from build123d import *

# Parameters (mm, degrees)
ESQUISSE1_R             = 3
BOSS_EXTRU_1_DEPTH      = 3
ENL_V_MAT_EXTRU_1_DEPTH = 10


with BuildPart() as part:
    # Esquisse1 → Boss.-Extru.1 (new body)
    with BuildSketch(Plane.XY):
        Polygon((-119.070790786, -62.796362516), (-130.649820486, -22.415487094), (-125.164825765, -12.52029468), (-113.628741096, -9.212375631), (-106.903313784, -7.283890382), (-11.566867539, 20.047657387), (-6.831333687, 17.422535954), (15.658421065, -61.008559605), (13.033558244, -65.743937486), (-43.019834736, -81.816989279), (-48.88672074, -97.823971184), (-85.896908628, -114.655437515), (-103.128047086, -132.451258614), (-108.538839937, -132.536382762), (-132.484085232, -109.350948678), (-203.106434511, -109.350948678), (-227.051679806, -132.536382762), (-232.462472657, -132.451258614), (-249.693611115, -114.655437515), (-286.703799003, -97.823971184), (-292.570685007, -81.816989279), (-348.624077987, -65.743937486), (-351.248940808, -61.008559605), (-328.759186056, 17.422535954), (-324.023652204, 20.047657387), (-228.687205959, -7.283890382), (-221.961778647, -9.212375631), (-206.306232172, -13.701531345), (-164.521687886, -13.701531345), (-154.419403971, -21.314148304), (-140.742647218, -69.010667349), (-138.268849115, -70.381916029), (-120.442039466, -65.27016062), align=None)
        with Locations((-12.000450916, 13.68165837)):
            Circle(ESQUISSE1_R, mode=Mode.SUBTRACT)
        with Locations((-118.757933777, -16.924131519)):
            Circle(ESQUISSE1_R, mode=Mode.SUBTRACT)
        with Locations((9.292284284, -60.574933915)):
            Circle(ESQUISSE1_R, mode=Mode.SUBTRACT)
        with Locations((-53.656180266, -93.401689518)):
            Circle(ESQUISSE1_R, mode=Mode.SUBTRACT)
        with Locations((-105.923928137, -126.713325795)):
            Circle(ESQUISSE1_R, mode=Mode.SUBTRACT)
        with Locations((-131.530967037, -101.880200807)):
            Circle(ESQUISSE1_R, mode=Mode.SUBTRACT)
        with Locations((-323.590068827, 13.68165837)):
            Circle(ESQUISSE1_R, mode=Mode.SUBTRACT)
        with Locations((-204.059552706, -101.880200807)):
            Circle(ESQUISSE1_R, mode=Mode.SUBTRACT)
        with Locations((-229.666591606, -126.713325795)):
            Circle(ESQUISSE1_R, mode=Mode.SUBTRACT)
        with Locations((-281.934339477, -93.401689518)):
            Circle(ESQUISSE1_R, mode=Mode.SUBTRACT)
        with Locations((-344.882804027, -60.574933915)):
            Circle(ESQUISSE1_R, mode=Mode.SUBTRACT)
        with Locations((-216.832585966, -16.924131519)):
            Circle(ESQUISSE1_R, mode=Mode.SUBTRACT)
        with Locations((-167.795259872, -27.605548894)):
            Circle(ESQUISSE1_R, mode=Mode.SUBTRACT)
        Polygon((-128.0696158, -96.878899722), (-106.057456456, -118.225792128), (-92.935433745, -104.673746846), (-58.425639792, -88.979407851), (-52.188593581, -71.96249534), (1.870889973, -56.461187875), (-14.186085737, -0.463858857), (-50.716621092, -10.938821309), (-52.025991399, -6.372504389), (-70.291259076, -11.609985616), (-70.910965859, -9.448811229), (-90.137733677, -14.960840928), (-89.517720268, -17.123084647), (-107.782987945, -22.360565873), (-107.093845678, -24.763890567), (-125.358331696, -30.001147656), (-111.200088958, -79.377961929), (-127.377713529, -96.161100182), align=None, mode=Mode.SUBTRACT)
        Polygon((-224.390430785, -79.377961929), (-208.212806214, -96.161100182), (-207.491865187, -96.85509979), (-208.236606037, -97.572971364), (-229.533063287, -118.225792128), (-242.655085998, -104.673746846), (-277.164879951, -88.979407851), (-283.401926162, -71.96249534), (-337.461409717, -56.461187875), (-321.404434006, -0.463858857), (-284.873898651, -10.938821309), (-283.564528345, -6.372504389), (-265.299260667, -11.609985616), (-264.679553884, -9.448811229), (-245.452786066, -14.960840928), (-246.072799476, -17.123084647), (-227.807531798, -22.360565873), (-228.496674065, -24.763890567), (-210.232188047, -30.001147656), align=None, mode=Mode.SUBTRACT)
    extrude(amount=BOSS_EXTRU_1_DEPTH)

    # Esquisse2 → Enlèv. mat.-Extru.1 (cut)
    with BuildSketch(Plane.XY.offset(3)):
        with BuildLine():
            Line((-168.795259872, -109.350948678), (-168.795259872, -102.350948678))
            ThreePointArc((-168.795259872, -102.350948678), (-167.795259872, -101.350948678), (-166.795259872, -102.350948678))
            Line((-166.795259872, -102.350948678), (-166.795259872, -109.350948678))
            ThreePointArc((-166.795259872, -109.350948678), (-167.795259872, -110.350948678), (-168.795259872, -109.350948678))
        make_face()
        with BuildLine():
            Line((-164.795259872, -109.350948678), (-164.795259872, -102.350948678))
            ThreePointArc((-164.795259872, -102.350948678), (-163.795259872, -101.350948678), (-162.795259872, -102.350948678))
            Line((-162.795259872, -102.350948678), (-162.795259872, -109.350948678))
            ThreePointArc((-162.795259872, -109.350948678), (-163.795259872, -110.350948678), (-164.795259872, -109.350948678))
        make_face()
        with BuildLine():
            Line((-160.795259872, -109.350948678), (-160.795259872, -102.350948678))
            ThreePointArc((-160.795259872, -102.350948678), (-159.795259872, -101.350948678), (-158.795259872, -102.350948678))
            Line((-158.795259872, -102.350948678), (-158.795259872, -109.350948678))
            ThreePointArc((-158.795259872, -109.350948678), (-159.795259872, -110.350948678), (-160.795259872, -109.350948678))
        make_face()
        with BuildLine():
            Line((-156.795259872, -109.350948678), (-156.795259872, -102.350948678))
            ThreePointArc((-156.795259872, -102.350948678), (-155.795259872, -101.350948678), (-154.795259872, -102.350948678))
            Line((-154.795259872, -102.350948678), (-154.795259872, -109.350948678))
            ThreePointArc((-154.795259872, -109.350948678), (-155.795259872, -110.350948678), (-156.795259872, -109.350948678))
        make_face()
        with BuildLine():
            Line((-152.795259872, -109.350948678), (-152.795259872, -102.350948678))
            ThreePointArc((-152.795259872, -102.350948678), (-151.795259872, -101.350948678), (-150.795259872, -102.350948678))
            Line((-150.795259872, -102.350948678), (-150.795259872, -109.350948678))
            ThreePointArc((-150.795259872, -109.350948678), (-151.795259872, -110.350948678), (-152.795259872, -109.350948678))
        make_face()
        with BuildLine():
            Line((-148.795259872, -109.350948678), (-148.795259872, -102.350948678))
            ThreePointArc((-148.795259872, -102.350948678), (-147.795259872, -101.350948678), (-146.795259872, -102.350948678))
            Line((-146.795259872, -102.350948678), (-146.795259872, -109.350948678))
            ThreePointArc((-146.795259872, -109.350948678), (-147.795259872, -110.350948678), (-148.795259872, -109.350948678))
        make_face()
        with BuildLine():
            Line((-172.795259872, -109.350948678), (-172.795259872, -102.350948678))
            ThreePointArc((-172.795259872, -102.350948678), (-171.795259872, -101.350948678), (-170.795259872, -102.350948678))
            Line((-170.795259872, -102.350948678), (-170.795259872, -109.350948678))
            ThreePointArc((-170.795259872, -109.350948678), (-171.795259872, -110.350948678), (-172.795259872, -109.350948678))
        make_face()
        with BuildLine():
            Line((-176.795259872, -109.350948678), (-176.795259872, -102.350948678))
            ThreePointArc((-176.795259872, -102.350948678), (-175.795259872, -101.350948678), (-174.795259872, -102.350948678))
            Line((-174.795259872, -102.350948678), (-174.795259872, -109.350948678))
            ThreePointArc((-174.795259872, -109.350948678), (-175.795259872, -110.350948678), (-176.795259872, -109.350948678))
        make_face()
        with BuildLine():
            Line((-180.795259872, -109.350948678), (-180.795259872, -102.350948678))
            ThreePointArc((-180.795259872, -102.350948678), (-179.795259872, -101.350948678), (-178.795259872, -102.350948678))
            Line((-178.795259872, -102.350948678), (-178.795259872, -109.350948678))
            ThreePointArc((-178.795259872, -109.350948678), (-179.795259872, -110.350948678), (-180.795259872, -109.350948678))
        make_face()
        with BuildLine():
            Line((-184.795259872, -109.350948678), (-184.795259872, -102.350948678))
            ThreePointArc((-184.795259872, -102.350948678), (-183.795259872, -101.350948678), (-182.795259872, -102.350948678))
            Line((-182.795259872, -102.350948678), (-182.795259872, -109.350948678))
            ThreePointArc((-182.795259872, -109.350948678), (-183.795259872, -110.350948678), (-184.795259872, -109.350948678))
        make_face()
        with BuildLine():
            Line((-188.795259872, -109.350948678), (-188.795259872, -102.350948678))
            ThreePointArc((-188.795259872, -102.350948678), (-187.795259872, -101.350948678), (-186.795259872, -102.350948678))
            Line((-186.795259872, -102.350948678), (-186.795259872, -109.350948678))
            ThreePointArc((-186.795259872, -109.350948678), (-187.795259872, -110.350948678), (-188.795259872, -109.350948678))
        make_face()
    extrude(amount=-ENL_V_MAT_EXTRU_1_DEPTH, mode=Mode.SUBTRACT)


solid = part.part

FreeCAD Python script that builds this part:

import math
import FreeCAD as App
import Part
import Sketcher
Q = App.Units.Quantity

doc = App.newDocument("Part")
params = doc.addObject("Spreadsheet::Sheet", "Params")
for row, (alias, value) in enumerate([
    ("sketch1_diameter", "6 mm"),
    ("pad1_length", "3 mm"),
    ("sketch2_radius", "1 mm"),
    ("sketch2_height", "7 mm"),
    ("pocket1_length", "10 mm"),
], start=1):
    params.set(f"A{row}", alias)
    params.set(f"B{row}", "=" + value)
    params.setAlias(f"B{row}", alias)

body = doc.addObject("PartDesign::Body", "Body")

# Sketch on XY plane
sketch1 = body.newObject("Sketcher::SketchObject", "Sketch")
sketch1.AttachmentSupport = (doc.getObject("XY_Plane"), [""])
sketch1.MapMode = "FlatFace"
sketch1.addGeometry([
    Part.LineSegment(App.Vector(-130.6, -22.4, 0), App.Vector(-119.1, -62.8, 0)),  # 0
    Part.LineSegment(App.Vector(-119.1, -62.8, 0), App.Vector(-120.4, -65.3, 0)),  # 1
    Part.LineSegment(App.Vector(-120.4, -65.3, 0), App.Vector(-138.3, -70.4, 0)),  # 2
    Part.LineSegment(App.Vector(-138.3, -70.4, 0), App.Vector(-140.7, -69, 0)),  # 3
    Part.LineSegment(App.Vector(-140.7, -69, 0), App.Vector(-154.4, -21.3, 0)),  # 4
    Part.LineSegment(App.Vector(-154.4, -21.3, 0), App.Vector(-164.5, -13.7, 0)),  # 5
    Part.LineSegment(App.Vector(-164.5, -13.7, 0), App.Vector(-206.3, -13.7, 0)),  # 6
    Part.LineSegment(App.Vector(-206.3, -13.7, 0), App.Vector(-222, -9.2, 0)),  # 7
    Part.LineSegment(App.Vector(-222, -9.2, 0), App.Vector(-228.7, -7.3, 0)),  # 8
    Part.LineSegment(App.Vector(-228.7, -7.3, 0), App.Vector(-324, 20, 0)),  # 9
    Part.LineSegment(App.Vector(-324, 20, 0), App.Vector(-328.8, 17.4, 0)),  # 10
    Part.LineSegment(App.Vector(-328.8, 17.4, 0), App.Vector(-351.2, -61, 0)),  # 11
    Part.LineSegment(App.Vector(-351.2, -61, 0), App.Vector(-348.6, -65.7, 0)),  # 12
    Part.LineSegment(App.Vector(-348.6, -65.7, 0), App.Vector(-292.6, -81.8, 0)),  # 13
    Part.LineSegment(App.Vector(-292.6, -81.8, 0), App.Vector(-286.7, -97.8, 0)),  # 14
    Part.LineSegment(App.Vector(-286.7, -97.8, 0), App.Vector(-249.7, -114.7, 0)),  # 15
    Part.LineSegment(App.Vector(-249.7, -114.7, 0), App.Vector(-232.5, -132.5, 0)),  # 16
    Part.LineSegment(App.Vector(-232.5, -132.5, 0), App.Vector(-227.1, -132.5, 0)),  # 17
    Part.LineSegment(App.Vector(-227.1, -132.5, 0), App.Vector(-203.1, -109.4, 0)),  # 18
    Part.LineSegment(App.Vector(-203.1, -109.4, 0), App.Vector(-132.5, -109.4, 0)),  # 19
    Part.LineSegment(App.Vector(-132.5, -109.4, 0), App.Vector(-108.5, -132.5, 0)),  # 20
    Part.LineSegment(App.Vector(-108.5, -132.5, 0), App.Vector(-103.1, -132.5, 0)),  # 21
    Part.LineSegment(App.Vector(-103.1, -132.5, 0), App.Vector(-85.9, -114.7, 0)),  # 22
    Part.LineSegment(App.Vector(-85.9, -114.7, 0), App.Vector(-48.9, -97.8, 0)),  # 23
    Part.LineSegment(App.Vector(-48.9, -97.8, 0), App.Vector(-43, -81.8, 0)),  # 24
    Part.LineSegment(App.Vector(-43, -81.8, 0), App.Vector(13, -65.7, 0)),  # 25
    Part.LineSegment(App.Vector(13, -65.7, 0), App.Vector(15.7, -61, 0)),  # 26
    Part.LineSegment(App.Vector(15.7, -61, 0), App.Vector(-6.8, 17.4, 0)),  # 27
    Part.LineSegment(App.Vector(-6.8, 17.4, 0), App.Vector(-11.6, 20, 0)),  # 28
    Part.LineSegment(App.Vector(-11.6, 20, 0), App.Vector(-106.9, -7.3, 0)),  # 29
    Part.LineSegment(App.Vector(-106.9, -7.3, 0), App.Vector(-113.6, -9.2, 0)),  # 30
    Part.LineSegment(App.Vector(-113.6, -9.2, 0), App.Vector(-125.2, -12.5, 0)),  # 31
    Part.LineSegment(App.Vector(-125.2, -12.5, 0), App.Vector(-130.6, -22.4, 0)),  # 32
    Part.Circle(App.Vector(-53.7, -93.4, 0), App.Vector(0, 0, 1), 3),  # 33
    Part.Circle(App.Vector(-105.9, -126.7, 0), App.Vector(0, 0, 1), 3),  # 34
    Part.Circle(App.Vector(-131.5, -101.9, 0), App.Vector(0, 0, 1), 3),  # 35
    Part.Circle(App.Vector(9.3, -60.6, 0), App.Vector(0, 0, 1), 3),  # 36
    Part.LineSegment(App.Vector(-128.1, -96.9, 0), App.Vector(-127.4, -96.2, 0)),  # 37
    Part.LineSegment(App.Vector(-127.4, -96.2, 0), App.Vector(-111.2, -79.4, 0)),  # 38
    Part.LineSegment(App.Vector(-111.2, -79.4, 0), App.Vector(-125.4, -30, 0)),  # 39
    Part.LineSegment(App.Vector(-125.4, -30, 0), App.Vector(-107.1, -24.8, 0)),  # 40
    Part.LineSegment(App.Vector(-107.1, -24.8, 0), App.Vector(-107.8, -22.4, 0)),  # 41
    Part.LineSegment(App.Vector(-107.8, -22.4, 0), App.Vector(-89.5, -17.1, 0)),  # 42
    Part.LineSegment(App.Vector(-89.5, -17.1, 0), App.Vector(-90.1, -15, 0)),  # 43
    Part.LineSegment(App.Vector(-90.1, -15, 0), App.Vector(-70.9, -9.4, 0)),  # 44
    Part.LineSegment(App.Vector(-70.9, -9.4, 0), App.Vector(-70.3, -11.6, 0)),  # 45
    Part.LineSegment(App.Vector(-70.3, -11.6, 0), App.Vector(-52, -6.4, 0)),  # 46
    Part.LineSegment(App.Vector(-52, -6.4, 0), App.Vector(-50.7, -10.9, 0)),  # 47
    Part.LineSegment(App.Vector(-50.7, -10.9, 0), App.Vector(-14.2, -0.5, 0)),  # 48
    Part.LineSegment(App.Vector(-14.2, -0.5, 0), App.Vector(1.9, -56.5, 0)),  # 49
    Part.LineSegment(App.Vector(1.9, -56.5, 0), App.Vector(-52.2, -72, 0)),  # 50
    Part.LineSegment(App.Vector(-52.2, -72, 0), App.Vector(-58.4, -89, 0)),  # 51
    Part.LineSegment(App.Vector(-58.4, -89, 0), App.Vector(-92.9, -104.7, 0)),  # 52
    Part.LineSegment(App.Vector(-92.9, -104.7, 0), App.Vector(-106.1, -118.2, 0)),  # 53
    Part.LineSegment(App.Vector(-106.1, -118.2, 0), App.Vector(-128.1, -96.9, 0)),  # 54
    Part.Circle(App.Vector(-229.7, -126.7, 0), App.Vector(0, 0, 1), 3),  # 55
    Part.Circle(App.Vector(-204.1, -101.9, 0), App.Vector(0, 0, 1), 3),  # 56
    Part.Circle(App.Vector(-281.9, -93.4, 0), App.Vector(0, 0, 1), 3),  # 57
    Part.LineSegment(App.Vector(-224.4, -79.4, 0), App.Vector(-208.2, -96.2, 0)),  # 58
    Part.LineSegment(App.Vector(-208.2, -96.2, 0), App.Vector(-207.5, -96.9, 0)),  # 59
    Part.LineSegment(App.Vector(-207.5, -96.9, 0), App.Vector(-208.2, -97.6, 0)),  # 60
    Part.LineSegment(App.Vector(-208.2, -97.6, 0), App.Vector(-229.5, -118.2, 0)),  # 61
    Part.LineSegment(App.Vector(-229.5, -118.2, 0), App.Vector(-242.7, -104.7, 0)),  # 62
    Part.LineSegment(App.Vector(-242.7, -104.7, 0), App.Vector(-277.2, -89, 0)),  # 63
    Part.LineSegment(App.Vector(-277.2, -89, 0), App.Vector(-283.4, -72, 0)),  # 64
    Part.LineSegment(App.Vector(-283.4, -72, 0), App.Vector(-337.5, -56.5, 0)),  # 65
    Part.LineSegment(App.Vector(-337.5, -56.5, 0), App.Vector(-321.4, -0.5, 0)),  # 66
    Part.LineSegment(App.Vector(-321.4, -0.5, 0), App.Vector(-284.9, -10.9, 0)),  # 67
    Part.LineSegment(App.Vector(-284.9, -10.9, 0), App.Vector(-283.6, -6.4, 0)),  # 68
    Part.LineSegment(App.Vector(-283.6, -6.4, 0), App.Vector(-265.3, -11.6, 0)),  # 69
    Part.LineSegment(App.Vector(-265.3, -11.6, 0), App.Vector(-264.7, -9.4, 0)),  # 70
    Part.LineSegment(App.Vector(-264.7, -9.4, 0), App.Vector(-245.5, -15, 0)),  # 71
    Part.LineSegment(App.Vector(-245.5, -15, 0), App.Vector(-246.1, -17.1, 0)),  # 72
    Part.LineSegment(App.Vector(-246.1, -17.1, 0), App.Vector(-227.8, -22.4, 0)),  # 73
    Part.LineSegment(App.Vector(-227.8, -22.4, 0), App.Vector(-228.5, -24.8, 0)),  # 74
    Part.LineSegment(App.Vector(-228.5, -24.8, 0), App.Vector(-210.2, -30, 0)),  # 75
    Part.LineSegment(App.Vector(-210.2, -30, 0), App.Vector(-224.4, -79.4, 0)),  # 76
    Part.Circle(App.Vector(-344.9, -60.6, 0), App.Vector(0, 0, 1), 3),  # 77
    Part.Circle(App.Vector(-12, 13.7, 0), App.Vector(0, 0, 1), 3),  # 78
    Part.Circle(App.Vector(-118.8, -16.9, 0), App.Vector(0, 0, 1), 3),  # 79
    Part.Circle(App.Vector(-167.8, -27.6, 0), App.Vector(0, 0, 1), 3),  # 80
    Part.Circle(App.Vector(-216.8, -16.9, 0), App.Vector(0, 0, 1), 3),  # 81
    Part.Circle(App.Vector(-323.6, 13.7, 0), App.Vector(0, 0, 1), 3),  # 82
], False)
sketch1.addConstraint([
    Sketcher.Constraint("Coincident", 0, 2, 1, 1),
    Sketcher.Constraint("Coincident", 1, 2, 2, 1),
    Sketcher.Constraint("Coincident", 2, 2, 3, 1),
    Sketcher.Constraint("Coincident", 3, 2, 4, 1),
    Sketcher.Constraint("Coincident", 4, 2, 5, 1),
    Sketcher.Constraint("Coincident", 5, 2, 6, 1),
    Sketcher.Constraint("Coincident", 6, 2, 7, 1),
    Sketcher.Constraint("Coincident", 7, 2, 8, 1),
    Sketcher.Constraint("Coincident", 8, 2, 9, 1),
    Sketcher.Constraint("Coincident", 9, 2, 10, 1),
    Sketcher.Constraint("Coincident", 10, 2, 11, 1),
    Sketcher.Constraint("Coincident", 11, 2, 12, 1),
    Sketcher.Constraint("Coincident", 12, 2, 13, 1),
    Sketcher.Constraint("Coincident", 13, 2, 14, 1),
    Sketcher.Constraint("Coincident", 14, 2, 15, 1),
    Sketcher.Constraint("Coincident", 15, 2, 16, 1),
    Sketcher.Constraint("Coincident", 16, 2, 17, 1),
    Sketcher.Constraint("Coincident", 17, 2, 18, 1),
    Sketcher.Constraint("Coincident", 18, 2, 19, 1),
    Sketcher.Constraint("Coincident", 19, 2, 20, 1),
    Sketcher.Constraint("Coincident", 20, 2, 21, 1),
    Sketcher.Constraint("Coincident", 21, 2, 22, 1),
    Sketcher.Constraint("Coincident", 22, 2, 23, 1),
    Sketcher.Constraint("Coincident", 23, 2, 24, 1),
    Sketcher.Constraint("Coincident", 24, 2, 25, 1),
    Sketcher.Constraint("Coincident", 25, 2, 26, 1),
    Sketcher.Constraint("Coincident", 26, 2, 27, 1),
    Sketcher.Constraint("Coincident", 27, 2, 28, 1),
    Sketcher.Constraint("Coincident", 28, 2, 29, 1),
    Sketcher.Constraint("Coincident", 29, 2, 30, 1),
    Sketcher.Constraint("Coincident", 30, 2, 31, 1),
    Sketcher.Constraint("Coincident", 31, 2, 32, 1),
    Sketcher.Constraint("Coincident", 32, 2, 0, 1),
    Sketcher.Constraint("Coincident", 37, 2, 38, 1),
    Sketcher.Constraint("Coincident", 38, 2, 39, 1),
    Sketcher.Constraint("Coincident", 39, 2, 40, 1),
    Sketcher.Constraint("Coincident", 40, 2, 41, 1),
    Sketcher.Constraint("Coincident", 41, 2, 42, 1),
    Sketcher.Constraint("Coincident", 42, 2, 43, 1),
    Sketcher.Constraint("Coincident", 43, 2, 44, 1),
    Sketcher.Constraint("Coincident", 44, 2, 45, 1),
    Sketcher.Constraint("Coincident", 45, 2, 46, 1),
    Sketcher.Constraint("Coincident", 46, 2, 47, 1),
    Sketcher.Constraint("Coincident", 47, 2, 48, 1),
    Sketcher.Constraint("Coincident", 48, 2, 49, 1),
    Sketcher.Constraint("Coincident", 49, 2, 50, 1),
    Sketcher.Constraint("Coincident", 50, 2, 51, 1),
    Sketcher.Constraint("Coincident", 51, 2, 52, 1),
    Sketcher.Constraint("Coincident", 52, 2, 53, 1),
    Sketcher.Constraint("Coincident", 53, 2, 54, 1),
    Sketcher.Constraint("Coincident", 54, 2, 37, 1),
    Sketcher.Constraint("Coincident", 58, 2, 59, 1),
    Sketcher.Constraint("Coincident", 59, 2, 60, 1),
    Sketcher.Constraint("Coincident", 60, 2, 61, 1),
    Sketcher.Constraint("Coincident", 61, 2, 62, 1),
    Sketcher.Constraint("Coincident", 62, 2, 63, 1),
    Sketcher.Constraint("Coincident", 63, 2, 64, 1),
    Sketcher.Constraint("Coincident", 64, 2, 65, 1),
    Sketcher.Constraint("Coincident", 65, 2, 66, 1),
    Sketcher.Constraint("Coincident", 66, 2, 67, 1),
    Sketcher.Constraint("Coincident", 67, 2, 68, 1),
    Sketcher.Constraint("Coincident", 68, 2, 69, 1),
    Sketcher.Constraint("Coincident", 69, 2, 70, 1),
    Sketcher.Constraint("Coincident", 70, 2, 71, 1),
    Sketcher.Constraint("Coincident", 71, 2, 72, 1),
    Sketcher.Constraint("Coincident", 72, 2, 73, 1),
    Sketcher.Constraint("Coincident", 73, 2, 74, 1),
    Sketcher.Constraint("Coincident", 74, 2, 75, 1),
    Sketcher.Constraint("Coincident", 75, 2, 76, 1),
    Sketcher.Constraint("Coincident", 76, 2, 58, 1),
    Sketcher.Constraint("Horizontal", 6),
    Sketcher.Constraint("Horizontal", 19),
    Sketcher.Constraint("Equal", 33, 34),
    Sketcher.Constraint("Equal", 34, 35),
    Sketcher.Constraint("Equal", 35, 36),
    Sketcher.Constraint("Equal", 36, 55),
    Sketcher.Constraint("Equal", 55, 56),
    Sketcher.Constraint("Equal", 56, 57),
    Sketcher.Constraint("Equal", 57, 77),
    Sketcher.Constraint("Equal", 77, 78),
    Sketcher.Constraint("Equal", 78, 79),
    Sketcher.Constraint("Equal", 79, 80),
    Sketcher.Constraint("Equal", 80, 81),
    Sketcher.Constraint("Equal", 81, 82),
    Sketcher.Constraint("Perpendicular", 0, 2),
    Sketcher.Constraint("Perpendicular", 1, 3),
    Sketcher.Constraint("Perpendicular", 2, 4),
    Sketcher.Constraint("Parallel", 7, 8),
    Sketcher.Constraint("Perpendicular", 8, 11),
    Sketcher.Constraint("Perpendicular", 11, 13),
    Sketcher.Constraint("Perpendicular", 16, 18),
    Sketcher.Constraint("Perpendicular", 20, 22),
    Sketcher.Constraint("Perpendicular", 4, 25),
    Sketcher.Constraint("Perpendicular", 3, 26),
    Sketcher.Constraint("Perpendicular", 25, 27),
    Sketcher.Constraint("Perpendicular", 27, 30),
    Sketcher.Constraint("Parallel", 30, 31),
    Sketcher.Constraint("Parallel", 26, 32),
    Sketcher.Constraint("Parallel", 37, 38),
    Sketcher.Constraint("Parallel", 31, 40),
    Sketcher.Constraint("Perpendicular", 40, 41),
    Sketcher.Constraint("Perpendicular", 41, 42),
    Sketcher.Constraint("Perpendicular", 42, 43),
    Sketcher.Constraint("Parallel", 29, 44),
    Sketcher.Constraint("Parallel", 43, 45),
    Sketcher.Constraint("Perpendicular", 45, 46),
    Sketcher.Constraint("Perpendicular", 46, 47),
    Sketcher.Constraint("Perpendicular", 47, 48),
    Sketcher.Constraint("Perpendicular", 48, 49),
    Sketcher.Constraint("Perpendicular", 49, 50),
    Sketcher.Constraint("Parallel", 24, 51),
    Sketcher.Constraint("Parallel", 23, 52),
    Sketcher.Constraint("Parallel", 22, 53),
    Sketcher.Constraint("Perpendicular", 58, 60),
    Sketcher.Constraint("Perpendicular", 18, 62),
    Sketcher.Constraint("Parallel", 15, 63),
    Sketcher.Constraint("Parallel", 14, 64),
    Sketcher.Constraint("Parallel", 13, 65),
    Sketcher.Constraint("Perpendicular", 65, 66),
    Sketcher.Constraint("Perpendicular", 66, 67),
    Sketcher.Constraint("Perpendicular", 67, 68),
    Sketcher.Constraint("Perpendicular", 68, 69),
    Sketcher.Constraint("Perpendicular", 69, 70),
    Sketcher.Constraint("Parallel", 9, 71),
    Sketcher.Constraint("Parallel", 70, 72),
    Sketcher.Constraint("Perpendicular", 72, 73),
    Sketcher.Constraint("Perpendicular", 73, 74),
    Sketcher.Constraint("Perpendicular", 74, 75),
    Sketcher.Constraint("Horizontal", 34, 3, 55, 3),
    Sketcher.Constraint("Horizontal", 35, 3, 56, 3),
    Sketcher.Constraint("Horizontal", 33, 3, 57, 3),
    Sketcher.Constraint("Horizontal", 36, 3, 77, 3),
    Sketcher.Constraint("Horizontal", 79, 3, 81, 3),
    Sketcher.Constraint("Horizontal", 78, 3, 82, 3),
    Sketcher.Constraint("Horizontal", 17, 2, 20, 2),
    Sketcher.Constraint("Horizontal", 16, 2, 21, 2),
    Sketcher.Constraint("Horizontal", 15, 2, 22, 2),
    Sketcher.Constraint("Horizontal", 14, 2, 23, 2),
    Sketcher.Constraint("Horizontal", 13, 2, 24, 2),
    Sketcher.Constraint("Horizontal", 12, 2, 25, 2),
    Sketcher.Constraint("Horizontal", 11, 2, 26, 2),
    Sketcher.Constraint("Horizontal", 10, 2, 27, 2),
    Sketcher.Constraint("Horizontal", 9, 2, 28, 2),
    Sketcher.Constraint("Horizontal", 8, 2, 29, 2),
    Sketcher.Constraint("Horizontal", 7, 2, 30, 2),
    Sketcher.Constraint("Horizontal", 37, 2, 58, 2),
    Sketcher.Constraint("Horizontal", 53, 2, 61, 2),
    Sketcher.Constraint("Horizontal", 52, 2, 62, 2),
    Sketcher.Constraint("Horizontal", 51, 2, 63, 2),
    Sketcher.Constraint("Horizontal", 50, 2, 64, 2),
    Sketcher.Constraint("Horizontal", 49, 2, 65, 2),
    Sketcher.Constraint("Horizontal", 48, 2, 66, 2),
    Sketcher.Constraint("Horizontal", 47, 2, 67, 2),
    Sketcher.Constraint("Horizontal", 46, 2, 68, 2),
    Sketcher.Constraint("Horizontal", 45, 2, 69, 2),
    Sketcher.Constraint("Horizontal", 44, 2, 70, 2),
    Sketcher.Constraint("Horizontal", 43, 2, 71, 2),
    Sketcher.Constraint("Horizontal", 42, 2, 72, 2),
    Sketcher.Constraint("Horizontal", 41, 2, 73, 2),
    Sketcher.Constraint("Horizontal", 40, 2, 74, 2),
    Sketcher.Constraint("Horizontal", 39, 2, 75, 2),
    Sketcher.Constraint("Horizontal", 38, 2, 76, 2),
    Sketcher.Constraint("Equal", 1, 3),
    Sketcher.Constraint("Equal", 18, 20),
    Sketcher.Constraint("Equal", 17, 21),
    Sketcher.Constraint("Equal", 15, 23),
    Sketcher.Constraint("Equal", 14, 24),
    Sketcher.Constraint("Equal", 13, 25),
    Sketcher.Constraint("Equal", 12, 26),
    Sketcher.Constraint("Equal", 10, 28),
    Sketcher.Constraint("Equal", 9, 29),
    Sketcher.Constraint("Equal", 42, 46),
    Sketcher.Constraint("Equal", 38, 58),
    Sketcher.Constraint("Equal", 39, 76),
    Sketcher.Constraint("Diameter", 33, 6.0),
    Sketcher.Constraint("Angle", 0, Q("-74 deg")),
    Sketcher.Constraint("Angle", 1, Q("-119 deg")),
    Sketcher.Constraint("Angle", 5, Q("143 deg")),
    Sketcher.Constraint("Distance", 0, 42.008202),
    Sketcher.Constraint("DistanceX", 19, 1, 19, 2, 70.622349),
    Sketcher.Constraint("DistanceY", 35, 3, -1, 1, 101.880201),
    Sketcher.Constraint("DistanceX", 14, 2, -1, 1, 286.703799),
    Sketcher.Constraint("DistanceY", 37, 2, -1, 1, 96.1611),
    Sketcher.Constraint("DistanceY", 54, 2, -1, 1, 96.8789),
    Sketcher.Constraint("DistanceY", 59, 2, -1, 1, 96.8551),
    Sketcher.Constraint("DistanceX", 67, 2, -1, 1, 284.873899),
    Sketcher.Constraint("DistanceX", 72, 2, -1, 1, 246.072799),
    Sketcher.Constraint("Distance", 2, 18.54522),
    Sketcher.Constraint("Distance", 4, 49.618662),
    Sketcher.Constraint("Distance", 5, 12.64943),
    Sketcher.Constraint("Distance", 8, 6.996458),
    Sketcher.Constraint("Distance", 9, 99.17687),
    Sketcher.Constraint("Distance", 14, 17.048279),
    Sketcher.Constraint("Distance", 16, 24.771019),
    Sketcher.Constraint("Distance", 32, 11.313708),
    Sketcher.Constraint("Distance", 38, 23.310711),
    Sketcher.Constraint("Distance", 39, 51.366581),
    Sketcher.Constraint("Distance", 43, 2.249381),
    Sketcher.Constraint("Distance", 45, 2.248268),
    Sketcher.Constraint("Distance", 49, 58.25399),
    Sketcher.Constraint("Distance", 50, 56.23805),
    Sketcher.Constraint("Distance", 51, 18.123908),
    Sketcher.Constraint("Distance", 54, 30.663088),
    Sketcher.Constraint("Distance", 61, 29.66611),
    Sketcher.Constraint("DistanceX", 6, 2, 6, 1, 41.784544),
    Sketcher.Constraint("DistanceX", 33, 3, -1, 1, 53.65618),
    Sketcher.Constraint("DistanceY", 33, 3, -1, 1, 93.40169),
    Sketcher.Constraint("DistanceX", 34, 3, -1, 1, 105.923928),
    Sketcher.Constraint("DistanceX", 55, 3, -1, 1, 229.666592),
    Sketcher.Constraint("DistanceX", 57, 3, -1, 1, 281.934339),
    Sketcher.Constraint("DistanceX", 78, 3, -1, 1, 12.000451),
    Sketcher.Constraint("DistanceY", -1, 1, 78, 3, 13.681658),
    Sketcher.Constraint("DistanceY", 79, 3, -1, 1, 16.924132),
    Sketcher.Constraint("DistanceX", 80, 3, -1, 1, 167.79526),
    Sketcher.Constraint("DistanceY", 80, 3, -1, 1, 27.605549),
    Sketcher.Constraint("DistanceX", 82, 3, -1, 1, 323.590069),
    Sketcher.Constraint("DistanceX", 0, 2, -1, 1, 119.070791),
    Sketcher.Constraint("DistanceX", 1, 2, -1, 1, 120.442039),
    Sketcher.Constraint("DistanceY", 1, 2, -1, 1, 65.270161),
    Sketcher.Constraint("DistanceX", 7, 2, -1, 1, 221.961779),
    Sketcher.Constraint("DistanceX", 11, 2, -1, 1, 351.248941),
    Sketcher.Constraint("DistanceY", 11, 2, -1, 1, 61.00856),
    Sketcher.Constraint("DistanceY", 13, 2, -1, 1, 81.816989),
    Sketcher.Constraint("DistanceY", 14, 2, -1, 1, 97.823971),
    Sketcher.Constraint("DistanceX", 15, 2, -1, 1, 249.693611),
    Sketcher.Constraint("DistanceY", 16, 2, -1, 1, 132.451259),
    Sketcher.Constraint("DistanceX", 17, 2, -1, 1, 227.05168),
    Sketcher.Constraint("DistanceY", 18, 2, -1, 1, 109.350949),
    Sketcher.Constraint("DistanceX", 38, 2, -1, 1, 111.200089),
    Sketcher.Constraint("DistanceY", 38, 2, -1, 1, 79.377962),
    Sketcher.Constraint("DistanceX", 39, 2, -1, 1, 125.358332),
    Sketcher.Constraint("DistanceY", 40, 2, -1, 1, 24.763891),
    Sketcher.Constraint("DistanceX", 42, 2, -1, 1, 89.51772),
    Sketcher.Constraint("DistanceY", 43, 2, -1, 1, 14.960841),
    Sketcher.Constraint("DistanceY", 44, 2, -1, 1, 9.448811),
    Sketcher.Constraint("DistanceX", 45, 2, -1, 1, 70.291259),
    Sketcher.Constraint("DistanceY", 48, 2, -1, 1, 0.463859),
    Sketcher.Constraint("DistanceY", 60, 2, -1, 1, 97.572971),
    Sketcher.Constraint("Distance", 10, 5.414475),
    Sketcher.Constraint("Distance", 15, 40.657745),
    Sketcher.Constraint("Distance", 53, 18.863865),
    Sketcher.Constraint("DistanceY", 34, 3, -1, 1, 126.713326),
    Sketcher.Constraint("DistanceX", 35, 3, -1, 1, 131.530967),
    Sketcher.Constraint("DistanceX", -1, 1, 36, 3, 9.292284),
    Sketcher.Constraint("DistanceY", 36, 3, -1, 1, 60.574934),
    Sketcher.Constraint("DistanceX", 56, 3, -1, 1, 204.059553),
    Sketcher.Constraint("DistanceX", 77, 3, -1, 1, 344.882804),
    Sketcher.Constraint("DistanceX", 79, 3, -1, 1, 118.757934),
    Sketcher.Constraint("DistanceX", 81, 3, -1, 1, 216.832586),
])
sketch1.setExpression("Constraints[174]", "Params.sketch1_diameter")
pad1 = body.newObject("PartDesign::Pad", "Pad")
pad1.Profile = sketch1
pad1.setExpression("Length", "Params.pad1_length")

# Sketch on XY plane
sketch2 = body.newObject("Sketcher::SketchObject", "Sketch001")
sketch2.AttachmentSupport = (doc.getObject("XY_Plane"), [""])
sketch2.MapMode = "FlatFace"
sketch2.AttachmentOffset = App.Placement(App.Vector(0, 0, 3), App.Rotation())
sketch2.addGeometry([
    Part.LineSegment(App.Vector(-168.8, -102.4, 0), App.Vector(-168.8, -109.4, 0)),  # 0
    Part.ArcOfCircle(Part.Circle(App.Vector(-167.8, -109.4, 0), App.Vector(0, 0, 1), 1), math.radians(180), math.radians(360)),  # 1
    Part.LineSegment(App.Vector(-166.8, -109.4, 0), App.Vector(-166.8, -102.4, 0)),  # 2
    Part.ArcOfCircle(Part.Circle(App.Vector(-167.8, -102.4, 0), App.Vector(0, 0, 1), 1), math.radians(0), math.radians(180)),  # 3
    Part.LineSegment(App.Vector(-164.8, -102.4, 0), App.Vector(-164.8, -109.4, 0)),  # 4
    Part.ArcOfCircle(Part.Circle(App.Vector(-163.8, -109.4, 0), App.Vector(0, 0, 1), 1), math.radians(180), math.radians(360)),  # 5
    Part.LineSegment(App.Vector(-162.8, -109.4, 0), App.Vector(-162.8, -102.4, 0)),  # 6
    Part.ArcOfCircle(Part.Circle(App.Vector(-163.8, -102.4, 0), App.Vector(0, 0, 1), 1), math.radians(0), math.radians(180)),  # 7
    Part.LineSegment(App.Vector(-160.8, -102.4, 0), App.Vector(-160.8, -109.4, 0)),  # 8
    Part.ArcOfCircle(Part.Circle(App.Vector(-159.8, -109.4, 0), App.Vector(0, 0, 1), 1), math.radians(180), math.radians(360)),  # 9
    Part.LineSegment(App.Vector(-158.8, -109.4, 0), App.Vector(-158.8, -102.4, 0)),  # 10
    Part.ArcOfCircle(Part.Circle(App.Vector(-159.8, -102.4, 0), App.Vector(0, 0, 1), 1), math.radians(0), math.radians(180)),  # 11
    Part.LineSegment(App.Vector(-156.8, -102.4, 0), App.Vector(-156.8, -109.4, 0)),  # 12
    Part.ArcOfCircle(Part.Circle(App.Vector(-155.8, -109.4, 0), App.Vector(0, 0, 1), 1), math.radians(180), math.radians(360)),  # 13
    Part.LineSegment(App.Vector(-154.8, -109.4, 0), App.Vector(-154.8, -102.4, 0)),  # 14
    Part.ArcOfCircle(Part.Circle(App.Vector(-155.8, -102.4, 0), App.Vector(0, 0, 1), 1), math.radians(0), math.radians(180)),  # 15
    Part.LineSegment(App.Vector(-152.8, -102.4, 0), App.Vector(-152.8, -109.4, 0)),  # 16
    Part.ArcOfCircle(Part.Circle(App.Vector(-151.8, -109.4, 0), App.Vector(0, 0, 1), 1), math.radians(180), math.radians(360)),  # 17
    Part.LineSegment(App.Vector(-150.8, -109.4, 0), App.Vector(-150.8, -102.4, 0)),  # 18
    Part.ArcOfCircle(Part.Circle(App.Vector(-151.8, -102.4, 0), App.Vector(0, 0, 1), 1), math.radians(0), math.radians(180)),  # 19
    Part.LineSegment(App.Vector(-148.8, -102.4, 0), App.Vector(-148.8, -109.4, 0)),  # 20
    Part.ArcOfCircle(Part.Circle(App.Vector(-147.8, -109.4, 0), App.Vector(0, 0, 1), 1), math.radians(180), math.radians(360)),  # 21
    Part.LineSegment(App.Vector(-146.8, -109.4, 0), App.Vector(-146.8, -102.4, 0)),  # 22
    Part.ArcOfCircle(Part.Circle(App.Vector(-147.8, -102.4, 0), App.Vector(0, 0, 1), 1), math.radians(0), math.radians(180)),  # 23
    Part.LineSegment(App.Vector(-172.8, -102.4, 0), App.Vector(-172.8, -109.4, 0)),  # 24
    Part.ArcOfCircle(Part.Circle(App.Vector(-171.8, -109.4, 0), App.Vector(0, 0, 1), 1), math.radians(180), math.radians(360)),  # 25
    Part.LineSegment(App.Vector(-170.8, -109.4, 0), App.Vector(-170.8, -102.4, 0)),  # 26
    Part.ArcOfCircle(Part.Circle(App.Vector(-171.8, -102.4, 0), App.Vector(0, 0, 1), 1), math.radians(0), math.radians(180)),  # 27
    Part.LineSegment(App.Vector(-176.8, -102.4, 0), App.Vector(-176.8, -109.4, 0)),  # 28
    Part.ArcOfCircle(Part.Circle(App.Vector(-175.8, -109.4, 0), App.Vector(0, 0, 1), 1), math.radians(180), math.radians(360)),  # 29
    Part.LineSegment(App.Vector(-174.8, -109.4, 0), App.Vector(-174.8, -102.4, 0)),  # 30
    Part.ArcOfCircle(Part.Circle(App.Vector(-175.8, -102.4, 0), App.Vector(0, 0, 1), 1), math.radians(0), math.radians(180)),  # 31
    Part.LineSegment(App.Vector(-180.8, -102.4, 0), App.Vector(-180.8, -109.4, 0)),  # 32
    Part.ArcOfCircle(Part.Circle(App.Vector(-179.8, -109.4, 0), App.Vector(0, 0, 1), 1), math.radians(180), math.radians(360)),  # 33
    Part.LineSegment(App.Vector(-178.8, -109.4, 0), App.Vector(-178.8, -102.4, 0)),  # 34
    Part.ArcOfCircle(Part.Circle(App.Vector(-179.8, -102.4, 0), App.Vector(0, 0, 1), 1), math.radians(0), math.radians(180)),  # 35
    Part.LineSegment(App.Vector(-184.8, -102.4, 0), App.Vector(-184.8, -109.4, 0)),  # 36
    Part.ArcOfCircle(Part.Circle(App.Vector(-183.8, -109.4, 0), App.Vector(0, 0, 1), 1), math.radians(180), math.radians(360)),  # 37
    Part.LineSegment(App.Vector(-182.8, -109.4, 0), App.Vector(-182.8, -102.4, 0)),  # 38
    Part.ArcOfCircle(Part.Circle(App.Vector(-183.8, -102.4, 0), App.Vector(0, 0, 1), 1), math.radians(0), math.radians(180)),  # 39
    Part.LineSegment(App.Vector(-188.8, -102.4, 0), App.Vector(-188.8, -109.4, 0)),  # 40
    Part.ArcOfCircle(Part.Circle(App.Vector(-187.8, -109.4, 0), App.Vector(0, 0, 1), 1), math.radians(180), math.radians(360)),  # 41
    Part.LineSegment(App.Vector(-186.8, -109.4, 0), App.Vector(-186.8, -102.4, 0)),  # 42
    Part.ArcOfCircle(Part.Circle(App.Vector(-187.8, -102.4, 0), App.Vector(0, 0, 1), 1), math.radians(0), math.radians(180)),  # 43
], False)
sketch2.addConstraint([
    Sketcher.Constraint("Tangent", 0, 2, 1, 1),
    Sketcher.Constraint("Tangent", 1, 2, 2, 1),
    Sketcher.Constraint("Tangent", 2, 2, 3, 1),
    Sketcher.Constraint("Tangent", 3, 2, 0, 1),
    Sketcher.Constraint("Tangent", 4, 2, 5, 1),
    Sketcher.Constraint("Tangent", 5, 2, 6, 1),
    Sketcher.Constraint("Tangent", 6, 2, 7, 1),
    Sketcher.Constraint("Tangent", 7, 2, 4, 1),
    Sketcher.Constraint("Tangent", 8, 2, 9, 1),
    Sketcher.Constraint("Tangent", 9, 2, 10, 1),
    Sketcher.Constraint("Tangent", 10, 2, 11, 1),
    Sketcher.Constraint("Tangent", 11, 2, 8, 1),
    Sketcher.Constraint("Tangent", 12, 2, 13, 1),
    Sketcher.Constraint("Tangent", 13, 2, 14, 1),
    Sketcher.Constraint("Tangent", 14, 2, 15, 1),
    Sketcher.Constraint("Tangent", 15, 2, 12, 1),
    Sketcher.Constraint("Tangent", 16, 2, 17, 1),
    Sketcher.Constraint("Tangent", 17, 2, 18, 1),
    Sketcher.Constraint("Tangent", 18, 2, 19, 1),
    Sketcher.Constraint("Tangent", 19, 2, 16, 1),
    Sketcher.Constraint("Tangent", 20, 2, 21, 1),
    Sketcher.Constraint("Tangent", 21, 2, 22, 1),
    Sketcher.Constraint("Tangent", 22, 2, 23, 1),
    Sketcher.Constraint("Tangent", 23, 2, 20, 1),
    Sketcher.Constraint("Tangent", 24, 2, 25, 1),
    Sketcher.Constraint("Tangent", 25, 2, 26, 1),
    Sketcher.Constraint("Tangent", 26, 2, 27, 1),
    Sketcher.Constraint("Tangent", 27, 2, 24, 1),
    Sketcher.Constraint("Tangent", 28, 2, 29, 1),
    Sketcher.Constraint("Tangent", 29, 2, 30, 1),
    Sketcher.Constraint("Tangent", 30, 2, 31, 1),
    Sketcher.Constraint("Tangent", 31, 2, 28, 1),
    Sketcher.Constraint("Tangent", 32, 2, 33, 1),
    Sketcher.Constraint("Tangent", 33, 2, 34, 1),
    Sketcher.Constraint("Tangent", 34, 2, 35, 1),
    Sketcher.Constraint("Tangent", 35, 2, 32, 1),
    Sketcher.Constraint("Tangent", 36, 2, 37, 1),
    Sketcher.Constraint("Tangent", 37, 2, 38, 1),
    Sketcher.Constraint("Tangent", 38, 2, 39, 1),
    Sketcher.Constraint("Tangent", 39, 2, 36, 1),
    Sketcher.Constraint("Tangent", 40, 2, 41, 1),
    Sketcher.Constraint("Tangent", 41, 2, 42, 1),
    Sketcher.Constraint("Tangent", 42, 2, 43, 1),
    Sketcher.Constraint("Tangent", 43, 2, 40, 1),
    Sketcher.Constraint("Vertical", 0),
    Sketcher.Constraint("Vertical", 2),
    Sketcher.Constraint("Vertical", 4),
    Sketcher.Constraint("Vertical", 6),
    Sketcher.Constraint("Vertical", 8),
    Sketcher.Constraint("Vertical", 10),
    Sketcher.Constraint("Vertical", 12),
    Sketcher.Constraint("Vertical", 14),
    Sketcher.Constraint("Vertical", 16),
    Sketcher.Constraint("Vertical", 18),
    Sketcher.Constraint("Vertical", 20),
    Sketcher.Constraint("Vertical", 22),
    Sketcher.Constraint("Vertical", 24),
    Sketcher.Constraint("Vertical", 26),
    Sketcher.Constraint("Vertical", 28),
    Sketcher.Constraint("Vertical", 30),
    Sketcher.Constraint("Vertical", 32),
    Sketcher.Constraint("Vertical", 34),
    Sketcher.Constraint("Vertical", 36),
    Sketcher.Constraint("Vertical", 38),
    Sketcher.Constraint("Vertical", 40),
    Sketcher.Constraint("Vertical", 42),
    Sketcher.Constraint("Equal", 3, 5),
    Sketcher.Constraint("Equal", 7, 9),
    Sketcher.Constraint("Equal", 11, 13),
    Sketcher.Constraint("Equal", 15, 17),
    Sketcher.Constraint("Equal", 19, 21),
    Sketcher.Constraint("Equal", 23, 25),
    Sketcher.Constraint("Equal", 27, 29),
    Sketcher.Constraint("Equal", 31, 33),
    Sketcher.Constraint("Equal", 35, 37),
    Sketcher.Constraint("Equal", 39, 41),
    Sketcher.Constraint("Horizontal", 1, 3, 5, 3),
    Sketcher.Constraint("Horizontal", 3, 3, 7, 3),
    Sketcher.Constraint("Horizontal", 5, 3, 9, 3),
    Sketcher.Constraint("Horizontal", 7, 3, 11, 3),
    Sketcher.Constraint("Horizontal", 9, 3, 13, 3),
    Sketcher.Constraint("Horizontal", 11, 3, 15, 3),
    Sketcher.Constraint("Horizontal", 13, 3, 17, 3),
    Sketcher.Constraint("Horizontal", 15, 3, 19, 3),
    Sketcher.Constraint("Horizontal", 17, 3, 21, 3),
    Sketcher.Constraint("Horizontal", 19, 3, 23, 3),
    Sketcher.Constraint("Horizontal", 21, 3, 25, 3),
    Sketcher.Constraint("Horizontal", 23, 3, 27, 3),
    Sketcher.Constraint("Horizontal", 25, 3, 29, 3),
    Sketcher.Constraint("Horizontal", 27, 3, 31, 3),
    Sketcher.Constraint("Horizontal", 29, 3, 33, 3),
    Sketcher.Constraint("Horizontal", 31, 3, 35, 3),
    Sketcher.Constraint("Horizontal", 33, 3, 37, 3),
    Sketcher.Constraint("Horizontal", 35, 3, 39, 3),
    Sketcher.Constraint("Horizontal", 37, 3, 41, 3),
    Sketcher.Constraint("Horizontal", 39, 3, 43, 3),
    Sketcher.Constraint("Radius", 1, 1.0),
    Sketcher.Constraint("DistanceY", 0, 2, 0, 1, 7.0),
    Sketcher.Constraint("DistanceX", 1, 3, -1, 1, 167.79526),
    Sketcher.Constraint("DistanceY", 1, 3, -1, 1, 109.350949),
    Sketcher.Constraint("DistanceX", 5, 3, -1, 1, 163.79526),
    Sketcher.Constraint("DistanceX", 9, 3, -1, 1, 159.79526),
    Sketcher.Constraint("DistanceX", 13, 3, -1, 1, 155.79526),
    Sketcher.Constraint("DistanceX", 17, 3, -1, 1, 151.79526),
    Sketcher.Constraint("DistanceX", 21, 3, -1, 1, 147.79526),
    Sketcher.Constraint("DistanceX", 25, 3, -1, 1, 171.79526),
    Sketcher.Constraint("DistanceX", 29, 3, -1, 1, 175.79526),
    Sketcher.Constraint("DistanceX", 33, 3, -1, 1, 179.79526),
    Sketcher.Constraint("DistanceX", 37, 3, -1, 1, 183.79526),
    Sketcher.Constraint("DistanceX", 41, 3, -1, 1, 187.79526),
])
sketch2.setExpression("Constraints[96]", "Params.sketch2_radius")
sketch2.setExpression("Constraints[97]", "Params.sketch2_height")
pocket1 = body.newObject("PartDesign::Pocket", "Pocket")
pocket1.Profile = sketch2
pocket1.setExpression("Length", "Params.pocket1_length")

doc.recompute()
